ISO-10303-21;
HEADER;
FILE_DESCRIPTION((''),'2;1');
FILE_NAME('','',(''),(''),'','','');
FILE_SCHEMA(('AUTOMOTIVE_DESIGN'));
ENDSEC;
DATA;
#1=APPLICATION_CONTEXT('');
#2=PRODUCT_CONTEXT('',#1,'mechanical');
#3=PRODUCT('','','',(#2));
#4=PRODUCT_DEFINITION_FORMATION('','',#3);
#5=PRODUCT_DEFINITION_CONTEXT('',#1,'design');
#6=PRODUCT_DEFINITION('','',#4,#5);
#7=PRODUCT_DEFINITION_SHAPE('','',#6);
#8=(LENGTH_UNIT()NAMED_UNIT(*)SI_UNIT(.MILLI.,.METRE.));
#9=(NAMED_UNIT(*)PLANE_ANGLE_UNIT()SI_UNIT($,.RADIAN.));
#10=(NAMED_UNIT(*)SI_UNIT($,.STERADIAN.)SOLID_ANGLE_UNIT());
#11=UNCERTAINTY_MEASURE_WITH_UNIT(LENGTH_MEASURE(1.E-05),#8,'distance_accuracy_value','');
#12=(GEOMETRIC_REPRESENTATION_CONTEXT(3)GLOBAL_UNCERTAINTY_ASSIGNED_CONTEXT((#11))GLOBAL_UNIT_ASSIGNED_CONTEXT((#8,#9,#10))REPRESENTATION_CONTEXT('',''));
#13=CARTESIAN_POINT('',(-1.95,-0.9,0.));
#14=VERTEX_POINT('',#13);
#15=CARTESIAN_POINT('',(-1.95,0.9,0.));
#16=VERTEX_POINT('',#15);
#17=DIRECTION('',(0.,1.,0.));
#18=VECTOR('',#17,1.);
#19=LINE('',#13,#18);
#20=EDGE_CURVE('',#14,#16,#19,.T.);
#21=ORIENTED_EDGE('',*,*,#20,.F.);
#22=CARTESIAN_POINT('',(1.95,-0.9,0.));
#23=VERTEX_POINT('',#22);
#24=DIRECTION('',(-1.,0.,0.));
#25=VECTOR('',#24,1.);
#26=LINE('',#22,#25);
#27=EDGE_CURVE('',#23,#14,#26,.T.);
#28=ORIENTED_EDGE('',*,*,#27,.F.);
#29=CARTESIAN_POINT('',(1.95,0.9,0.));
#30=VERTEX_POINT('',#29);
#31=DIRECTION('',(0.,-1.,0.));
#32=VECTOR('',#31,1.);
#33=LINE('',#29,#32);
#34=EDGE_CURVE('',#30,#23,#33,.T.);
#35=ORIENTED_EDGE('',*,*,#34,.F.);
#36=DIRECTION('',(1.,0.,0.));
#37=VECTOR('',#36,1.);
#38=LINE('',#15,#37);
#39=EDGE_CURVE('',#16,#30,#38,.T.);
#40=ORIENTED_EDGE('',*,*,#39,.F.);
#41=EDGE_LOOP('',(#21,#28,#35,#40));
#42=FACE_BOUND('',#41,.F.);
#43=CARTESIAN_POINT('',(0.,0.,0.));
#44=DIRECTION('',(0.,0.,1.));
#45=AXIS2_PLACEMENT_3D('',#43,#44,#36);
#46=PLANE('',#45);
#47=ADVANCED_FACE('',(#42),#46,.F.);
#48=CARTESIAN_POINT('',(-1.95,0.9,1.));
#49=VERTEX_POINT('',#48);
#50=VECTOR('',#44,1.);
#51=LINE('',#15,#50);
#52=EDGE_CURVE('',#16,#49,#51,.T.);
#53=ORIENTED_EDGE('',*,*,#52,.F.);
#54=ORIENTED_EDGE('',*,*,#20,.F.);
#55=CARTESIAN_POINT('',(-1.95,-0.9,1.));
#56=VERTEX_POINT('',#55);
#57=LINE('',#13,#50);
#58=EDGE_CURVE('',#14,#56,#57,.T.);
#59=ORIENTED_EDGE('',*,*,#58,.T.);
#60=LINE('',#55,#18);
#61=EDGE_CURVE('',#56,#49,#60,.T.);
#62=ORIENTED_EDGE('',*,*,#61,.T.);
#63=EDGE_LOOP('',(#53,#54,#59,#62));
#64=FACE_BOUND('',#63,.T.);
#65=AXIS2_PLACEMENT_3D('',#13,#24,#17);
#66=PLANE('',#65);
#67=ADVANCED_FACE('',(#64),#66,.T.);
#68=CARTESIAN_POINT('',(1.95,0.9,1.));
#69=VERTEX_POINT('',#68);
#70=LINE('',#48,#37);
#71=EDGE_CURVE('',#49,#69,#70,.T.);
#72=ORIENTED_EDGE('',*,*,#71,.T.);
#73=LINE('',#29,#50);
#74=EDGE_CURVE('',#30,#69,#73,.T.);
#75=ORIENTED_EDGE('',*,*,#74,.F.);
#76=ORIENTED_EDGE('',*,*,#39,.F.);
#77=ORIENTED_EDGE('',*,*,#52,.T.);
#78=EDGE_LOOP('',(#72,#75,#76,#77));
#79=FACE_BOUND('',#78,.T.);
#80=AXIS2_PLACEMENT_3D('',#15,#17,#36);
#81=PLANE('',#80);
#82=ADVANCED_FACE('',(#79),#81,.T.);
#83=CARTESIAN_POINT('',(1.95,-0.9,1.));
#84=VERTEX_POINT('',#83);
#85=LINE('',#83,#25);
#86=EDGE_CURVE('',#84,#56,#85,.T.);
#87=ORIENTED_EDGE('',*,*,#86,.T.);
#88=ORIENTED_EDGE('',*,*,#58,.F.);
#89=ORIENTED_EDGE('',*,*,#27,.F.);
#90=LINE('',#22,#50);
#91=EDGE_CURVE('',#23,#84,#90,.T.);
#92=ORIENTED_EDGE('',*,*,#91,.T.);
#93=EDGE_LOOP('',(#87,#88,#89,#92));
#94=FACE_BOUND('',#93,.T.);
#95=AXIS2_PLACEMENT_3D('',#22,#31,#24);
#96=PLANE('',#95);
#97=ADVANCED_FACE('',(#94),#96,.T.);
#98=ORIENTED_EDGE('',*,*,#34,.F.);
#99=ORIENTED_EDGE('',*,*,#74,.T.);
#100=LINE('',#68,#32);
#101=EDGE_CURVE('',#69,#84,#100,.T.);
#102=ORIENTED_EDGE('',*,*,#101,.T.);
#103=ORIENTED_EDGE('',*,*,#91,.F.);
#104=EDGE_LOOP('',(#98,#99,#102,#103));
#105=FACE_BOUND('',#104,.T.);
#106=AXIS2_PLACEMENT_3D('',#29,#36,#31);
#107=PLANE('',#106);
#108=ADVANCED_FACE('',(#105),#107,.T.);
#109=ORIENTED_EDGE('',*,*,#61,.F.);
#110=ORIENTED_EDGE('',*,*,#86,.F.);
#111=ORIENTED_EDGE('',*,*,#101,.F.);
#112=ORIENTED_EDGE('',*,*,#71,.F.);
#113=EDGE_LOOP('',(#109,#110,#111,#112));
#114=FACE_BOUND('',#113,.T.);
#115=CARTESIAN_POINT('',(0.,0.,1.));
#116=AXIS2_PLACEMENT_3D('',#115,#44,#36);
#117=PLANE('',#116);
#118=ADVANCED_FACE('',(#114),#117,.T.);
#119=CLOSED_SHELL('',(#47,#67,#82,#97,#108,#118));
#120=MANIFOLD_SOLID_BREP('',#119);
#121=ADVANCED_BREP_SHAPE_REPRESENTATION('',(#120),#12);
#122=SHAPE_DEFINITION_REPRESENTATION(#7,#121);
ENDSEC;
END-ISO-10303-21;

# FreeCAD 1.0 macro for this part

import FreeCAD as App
import Part
import Sketcher
from FreeCAD import Vector
Q = App.Units.Quantity

doc = App.newDocument("Part")
body = doc.addObject("PartDesign::Body", "Body")

# Sketch on XY plane
sketch1 = body.newObject("Sketcher::SketchObject", "Sketch")
sketch1.AttachmentSupport = (doc.getObject("XY_Plane"), [""])
sketch1.MapMode = "FlatFace"
sketch1.addGeometry([
    Part.LineSegment(Vector(1.9, 0.9, 0), Vector(-1.9, 0.9, 0)),
    Part.LineSegment(Vector(-1.9, 0.9, 0), Vector(-1.9, -0.9, 0)),
    Part.LineSegment(Vector(-1.9, -0.9, 0), Vector(1.9, -0.9, 0)),
    Part.LineSegment(Vector(1.9, -0.9, 0), Vector(1.9, 0.9, 0)),
], False)
sketch1.addConstraint([
    Sketcher.Constraint("Coincident", 0, 2, 1, 1),
    Sketcher.Constraint("Coincident", 1, 2, 2, 1),
    Sketcher.Constraint("Coincident", 2, 2, 3, 1),
    Sketcher.Constraint("Coincident", 3, 2, 0, 1),
    Sketcher.Constraint("Horizontal", 0),
    Sketcher.Constraint("Vertical", 1),
    Sketcher.Constraint("Horizontal", 2),
    Sketcher.Constraint("Vertical", 3),
    Sketcher.Constraint("Symmetric", 0, 2, 2, 2, -1, 1),
    Sketcher.Constraint("DistanceX", 0, 2, 0, 1, Q("3.9 mm")),
    Sketcher.Constraint("DistanceY", 1, 2, 1, 1, Q("1.8 mm")),
])
pad1 = body.newObject("PartDesign::Pad", "Pad")
pad1.Profile = sketch1
pad1.Length = 1

doc.recompute()
